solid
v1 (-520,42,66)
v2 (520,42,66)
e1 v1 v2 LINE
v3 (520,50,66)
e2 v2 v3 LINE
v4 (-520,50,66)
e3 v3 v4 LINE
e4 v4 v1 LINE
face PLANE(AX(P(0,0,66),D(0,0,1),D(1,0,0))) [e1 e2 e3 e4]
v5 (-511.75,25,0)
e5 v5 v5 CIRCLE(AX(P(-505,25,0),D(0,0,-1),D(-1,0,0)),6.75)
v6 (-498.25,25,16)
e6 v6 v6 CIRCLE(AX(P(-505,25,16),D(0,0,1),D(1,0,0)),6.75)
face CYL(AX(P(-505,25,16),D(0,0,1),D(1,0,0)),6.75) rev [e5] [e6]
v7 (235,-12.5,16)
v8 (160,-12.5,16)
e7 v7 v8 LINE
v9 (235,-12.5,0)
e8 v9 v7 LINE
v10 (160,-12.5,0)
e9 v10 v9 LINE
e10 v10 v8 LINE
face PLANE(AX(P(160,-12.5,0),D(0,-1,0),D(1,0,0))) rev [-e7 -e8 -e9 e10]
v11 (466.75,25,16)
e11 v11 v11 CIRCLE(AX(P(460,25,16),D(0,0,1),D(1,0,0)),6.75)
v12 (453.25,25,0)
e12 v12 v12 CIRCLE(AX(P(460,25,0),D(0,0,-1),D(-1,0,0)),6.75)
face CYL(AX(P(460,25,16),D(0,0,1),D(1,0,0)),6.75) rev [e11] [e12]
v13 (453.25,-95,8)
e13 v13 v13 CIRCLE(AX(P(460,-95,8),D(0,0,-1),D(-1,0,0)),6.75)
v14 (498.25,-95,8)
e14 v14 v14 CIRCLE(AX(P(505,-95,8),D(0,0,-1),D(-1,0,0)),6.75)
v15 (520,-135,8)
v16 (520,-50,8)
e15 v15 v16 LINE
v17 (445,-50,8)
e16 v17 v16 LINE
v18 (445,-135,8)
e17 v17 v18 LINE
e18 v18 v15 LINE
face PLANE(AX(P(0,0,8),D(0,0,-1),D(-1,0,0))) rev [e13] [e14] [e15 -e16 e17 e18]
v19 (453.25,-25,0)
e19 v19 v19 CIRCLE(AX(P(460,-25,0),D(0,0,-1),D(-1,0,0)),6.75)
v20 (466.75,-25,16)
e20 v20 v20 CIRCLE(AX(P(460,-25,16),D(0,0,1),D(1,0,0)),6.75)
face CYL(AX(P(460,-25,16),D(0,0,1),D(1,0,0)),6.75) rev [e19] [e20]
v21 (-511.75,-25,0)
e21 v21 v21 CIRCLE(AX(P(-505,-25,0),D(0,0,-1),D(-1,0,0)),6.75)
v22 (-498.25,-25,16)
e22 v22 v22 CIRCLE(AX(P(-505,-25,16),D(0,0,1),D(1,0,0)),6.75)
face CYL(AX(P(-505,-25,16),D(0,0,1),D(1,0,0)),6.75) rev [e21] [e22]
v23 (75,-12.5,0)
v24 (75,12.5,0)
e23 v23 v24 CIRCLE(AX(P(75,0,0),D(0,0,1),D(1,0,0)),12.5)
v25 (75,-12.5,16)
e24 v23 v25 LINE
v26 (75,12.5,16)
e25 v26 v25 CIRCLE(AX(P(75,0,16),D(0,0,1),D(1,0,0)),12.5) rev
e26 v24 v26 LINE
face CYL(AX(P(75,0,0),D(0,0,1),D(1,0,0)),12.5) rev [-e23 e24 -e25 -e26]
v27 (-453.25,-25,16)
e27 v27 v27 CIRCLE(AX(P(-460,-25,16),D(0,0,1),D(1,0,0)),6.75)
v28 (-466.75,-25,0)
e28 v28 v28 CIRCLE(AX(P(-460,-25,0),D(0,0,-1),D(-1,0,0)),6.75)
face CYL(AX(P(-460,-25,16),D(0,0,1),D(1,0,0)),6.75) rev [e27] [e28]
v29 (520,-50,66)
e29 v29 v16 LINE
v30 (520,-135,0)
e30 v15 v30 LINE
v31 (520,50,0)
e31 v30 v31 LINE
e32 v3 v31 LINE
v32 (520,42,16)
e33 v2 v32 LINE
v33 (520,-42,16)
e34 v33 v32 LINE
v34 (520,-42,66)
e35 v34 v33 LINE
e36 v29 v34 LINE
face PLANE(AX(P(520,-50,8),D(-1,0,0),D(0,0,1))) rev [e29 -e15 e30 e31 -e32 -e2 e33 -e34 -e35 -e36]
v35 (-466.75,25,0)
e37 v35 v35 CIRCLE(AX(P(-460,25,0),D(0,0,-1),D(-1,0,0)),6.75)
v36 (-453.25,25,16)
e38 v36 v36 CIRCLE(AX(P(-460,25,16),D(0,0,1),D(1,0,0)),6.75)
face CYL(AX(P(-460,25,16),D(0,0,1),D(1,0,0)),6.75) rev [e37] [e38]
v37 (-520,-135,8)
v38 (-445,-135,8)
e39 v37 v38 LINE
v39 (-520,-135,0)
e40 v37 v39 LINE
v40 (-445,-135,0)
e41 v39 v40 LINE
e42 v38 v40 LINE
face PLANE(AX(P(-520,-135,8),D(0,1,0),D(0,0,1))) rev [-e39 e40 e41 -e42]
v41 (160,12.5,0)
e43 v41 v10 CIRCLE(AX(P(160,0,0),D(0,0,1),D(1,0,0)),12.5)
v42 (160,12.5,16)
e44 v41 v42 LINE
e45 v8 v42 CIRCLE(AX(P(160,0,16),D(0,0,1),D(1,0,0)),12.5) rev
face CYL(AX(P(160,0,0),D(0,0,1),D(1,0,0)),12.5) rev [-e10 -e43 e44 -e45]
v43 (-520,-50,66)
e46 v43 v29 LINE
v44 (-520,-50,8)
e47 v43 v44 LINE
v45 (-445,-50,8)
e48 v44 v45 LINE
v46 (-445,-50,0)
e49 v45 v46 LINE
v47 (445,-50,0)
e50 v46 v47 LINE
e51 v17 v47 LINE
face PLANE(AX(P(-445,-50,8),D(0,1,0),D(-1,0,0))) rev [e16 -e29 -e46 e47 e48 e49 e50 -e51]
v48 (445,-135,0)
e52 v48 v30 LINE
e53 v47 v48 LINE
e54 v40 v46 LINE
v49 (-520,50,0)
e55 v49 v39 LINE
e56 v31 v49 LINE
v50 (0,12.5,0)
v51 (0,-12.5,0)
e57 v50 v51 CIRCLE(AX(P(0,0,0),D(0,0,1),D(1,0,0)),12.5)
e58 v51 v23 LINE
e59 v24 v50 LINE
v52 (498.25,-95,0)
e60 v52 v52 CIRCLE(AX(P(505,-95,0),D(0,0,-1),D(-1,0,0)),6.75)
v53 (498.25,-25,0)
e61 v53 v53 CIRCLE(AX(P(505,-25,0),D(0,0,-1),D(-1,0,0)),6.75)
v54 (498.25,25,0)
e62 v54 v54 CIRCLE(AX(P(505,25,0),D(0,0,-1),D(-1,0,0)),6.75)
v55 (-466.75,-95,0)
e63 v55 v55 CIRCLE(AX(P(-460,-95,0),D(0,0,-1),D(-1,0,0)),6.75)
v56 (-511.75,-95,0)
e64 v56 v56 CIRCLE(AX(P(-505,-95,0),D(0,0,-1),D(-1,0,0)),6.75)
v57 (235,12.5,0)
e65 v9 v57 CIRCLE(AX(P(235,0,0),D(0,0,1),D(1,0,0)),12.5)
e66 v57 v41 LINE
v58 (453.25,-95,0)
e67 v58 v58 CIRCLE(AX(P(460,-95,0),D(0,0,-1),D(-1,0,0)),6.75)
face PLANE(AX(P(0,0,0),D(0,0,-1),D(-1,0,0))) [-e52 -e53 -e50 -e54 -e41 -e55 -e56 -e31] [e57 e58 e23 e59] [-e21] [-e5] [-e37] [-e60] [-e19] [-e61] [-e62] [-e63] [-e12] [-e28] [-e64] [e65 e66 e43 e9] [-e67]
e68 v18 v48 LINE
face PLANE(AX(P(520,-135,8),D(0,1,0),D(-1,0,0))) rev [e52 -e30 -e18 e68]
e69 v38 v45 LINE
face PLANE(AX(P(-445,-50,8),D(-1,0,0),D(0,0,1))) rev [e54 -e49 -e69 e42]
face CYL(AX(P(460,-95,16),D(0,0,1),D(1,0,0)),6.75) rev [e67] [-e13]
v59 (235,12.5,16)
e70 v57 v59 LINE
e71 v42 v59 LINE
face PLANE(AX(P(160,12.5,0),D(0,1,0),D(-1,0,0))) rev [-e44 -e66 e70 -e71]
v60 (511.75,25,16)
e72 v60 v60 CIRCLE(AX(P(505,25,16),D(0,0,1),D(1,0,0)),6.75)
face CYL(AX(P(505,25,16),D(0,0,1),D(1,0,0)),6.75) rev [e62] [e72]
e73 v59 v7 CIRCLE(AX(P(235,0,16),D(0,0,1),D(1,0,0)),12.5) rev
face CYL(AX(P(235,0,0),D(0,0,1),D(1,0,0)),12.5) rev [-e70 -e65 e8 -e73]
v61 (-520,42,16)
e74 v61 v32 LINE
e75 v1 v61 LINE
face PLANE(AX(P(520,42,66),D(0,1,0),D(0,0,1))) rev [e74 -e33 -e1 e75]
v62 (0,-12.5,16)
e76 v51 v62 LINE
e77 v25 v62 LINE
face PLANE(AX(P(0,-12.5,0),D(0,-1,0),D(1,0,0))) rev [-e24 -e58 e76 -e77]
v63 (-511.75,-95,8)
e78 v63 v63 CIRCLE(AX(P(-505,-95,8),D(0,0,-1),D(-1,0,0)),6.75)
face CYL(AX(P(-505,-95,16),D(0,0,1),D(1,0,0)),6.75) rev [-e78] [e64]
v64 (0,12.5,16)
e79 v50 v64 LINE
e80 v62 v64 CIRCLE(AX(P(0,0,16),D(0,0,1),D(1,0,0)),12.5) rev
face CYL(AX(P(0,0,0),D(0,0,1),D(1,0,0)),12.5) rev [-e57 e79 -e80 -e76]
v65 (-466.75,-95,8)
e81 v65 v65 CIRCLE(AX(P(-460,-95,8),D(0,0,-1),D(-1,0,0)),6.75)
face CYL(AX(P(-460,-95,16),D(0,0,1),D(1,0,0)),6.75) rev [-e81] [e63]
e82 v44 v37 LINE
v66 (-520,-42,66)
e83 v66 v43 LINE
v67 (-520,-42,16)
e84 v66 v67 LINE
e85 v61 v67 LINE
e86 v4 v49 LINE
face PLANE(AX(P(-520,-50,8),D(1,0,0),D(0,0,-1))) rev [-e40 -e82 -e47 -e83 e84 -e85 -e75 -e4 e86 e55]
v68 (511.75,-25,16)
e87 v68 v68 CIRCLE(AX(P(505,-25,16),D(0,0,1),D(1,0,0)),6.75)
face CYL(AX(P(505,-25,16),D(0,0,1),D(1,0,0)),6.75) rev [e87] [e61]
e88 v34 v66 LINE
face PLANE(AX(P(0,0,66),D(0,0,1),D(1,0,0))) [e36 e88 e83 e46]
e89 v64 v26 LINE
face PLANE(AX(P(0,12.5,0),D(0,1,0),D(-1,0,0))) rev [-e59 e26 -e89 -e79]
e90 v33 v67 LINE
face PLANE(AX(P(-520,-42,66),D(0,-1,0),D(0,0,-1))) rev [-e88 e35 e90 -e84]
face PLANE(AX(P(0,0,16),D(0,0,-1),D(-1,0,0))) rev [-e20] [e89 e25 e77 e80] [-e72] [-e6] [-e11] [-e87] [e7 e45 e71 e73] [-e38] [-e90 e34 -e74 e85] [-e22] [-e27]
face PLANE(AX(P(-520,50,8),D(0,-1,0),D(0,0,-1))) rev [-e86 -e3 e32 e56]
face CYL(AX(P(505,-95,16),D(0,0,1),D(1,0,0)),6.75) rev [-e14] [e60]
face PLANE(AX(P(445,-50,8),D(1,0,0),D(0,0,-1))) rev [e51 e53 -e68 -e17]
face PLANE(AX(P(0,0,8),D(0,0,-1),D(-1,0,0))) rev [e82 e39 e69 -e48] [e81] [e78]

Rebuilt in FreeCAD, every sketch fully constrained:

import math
import FreeCAD as App
import Part
import Sketcher

V = App.Vector
Q = App.Units.Quantity


def add_polygon(sketch, points):
    """Adds a closed chain of lines whose ends are joined by coincident constraints."""
    first, n = sketch.GeometryCount, len(points)
    for a, b in zip(points, points[1:] + points[:1]):
        sketch.addGeometry(Part.LineSegment(App.Vector(*a, 0), App.Vector(*b, 0)), False)
    for i in range(n):
        sketch.addConstraint(Sketcher.Constraint("Coincident", first + i, 2, first + (i + 1) % n, 1))

doc = App.newDocument("Part")
body = doc.addObject("PartDesign::Body", "Body")

sketch1 = body.newObject("Sketcher::SketchObject", "Sketch")
sketch1.AttachmentSupport = (doc.getObject("XY_Plane"), [""])
sketch1.MapMode = "FlatFace"
add_polygon(sketch1, [(-445, -50), (445, -50), (445, -135), (520, -135), (520, 50), (-520, 50), (-520, -135), (-445, -135)])
sketch1.addConstraint([
    Sketcher.Constraint("Horizontal", 0),
    Sketcher.Constraint("Vertical", 1),
    Sketcher.Constraint("Horizontal", 2),
    Sketcher.Constraint("Vertical", 3),
    Sketcher.Constraint("Horizontal", 4),
    Sketcher.Constraint("Vertical", 5),
    Sketcher.Constraint("Horizontal", 6),
    Sketcher.Constraint("Vertical", 7),
    Sketcher.Constraint("Symmetric", 2, 2, 5, 2, -2),
    Sketcher.Constraint("Equal", 2, 6),
    Sketcher.Constraint("DistanceX", 0, 1, 0, 2, Q("890 mm")),
    Sketcher.Constraint("DistanceX", 2, 1, 2, 2, Q("75 mm")),
    Sketcher.Constraint("DistanceY", 1, 2, 1, 1, Q("85 mm")),
    Sketcher.Constraint("DistanceY", 3, 1, 3, 2, Q("185 mm")),
    Sketcher.Constraint("DistanceY", 0, 2, -1, 1, Q("50 mm")),
])
pad1 = body.newObject("PartDesign::Pad", "Pad")
pad1.Profile = sketch1
pad1.Length = 8

sketch2 = body.newObject("Sketcher::SketchObject", "Sketch001")
sketch2.AttachmentSupport = (doc.getObject("XY_Plane"), [""])
sketch2.MapMode = "FlatFace"
sketch2.AttachmentOffset = App.Placement(V(0, 0, 8), App.Rotation())
add_polygon(sketch2, [(-520, 50), (-520, -50), (520, -50), (520, 50)])
sketch2.addConstraint([
    Sketcher.Constraint("Vertical", 0),
    Sketcher.Constraint("Horizontal", 1),
    Sketcher.Constraint("Vertical", 2),
    Sketcher.Constraint("Horizontal", 3),
    Sketcher.Constraint("Symmetric", 0, 2, 2, 2, -1, 1),
    Sketcher.Constraint("DistanceX", 1, 1, 1, 2, Q("1040 mm")),
    Sketcher.Constraint("DistanceY", 0, 2, 0, 1, Q("100 mm")),
])
pad2 = body.newObject("PartDesign::Pad", "Pad001")
pad2.Profile = sketch2
pad2.Length = 8

sketch3 = body.newObject("Sketcher::SketchObject", "Sketch002")
sketch3.AttachmentSupport = (doc.getObject("XY_Plane"), [""])
sketch3.MapMode = "FlatFace"
sketch3.AttachmentOffset = App.Placement(V(0, 0, 16), App.Rotation())
sketch3.addGeometry([
    Part.LineSegment(V(75, 12.5, 0), V(0, 12.5, 0)),
    Part.ArcOfCircle(Part.Circle(V(0, 0, 0), V(0, 0, 1), 12.5), math.radians(90), math.radians(270)),
    Part.LineSegment(V(0, -12.5, 0), V(75, -12.5, 0)),
    Part.ArcOfCircle(Part.Circle(V(75, 0, 0), V(0, 0, 1), 12.5), math.radians(-90), math.radians(90)),
    Part.LineSegment(V(235, 12.5, 0), V(160, 12.5, 0)),
    Part.ArcOfCircle(Part.Circle(V(160, 0, 0), V(0, 0, 1), 12.5), math.radians(90), math.radians(270)),
    Part.LineSegment(V(160, -12.5, 0), V(235, -12.5, 0)),
    Part.ArcOfCircle(Part.Circle(V(235, 0, 0), V(0, 0, 1), 12.5), math.radians(-90), math.radians(90)),
], False)
sketch3.addConstraint([
    Sketcher.Constraint("Tangent", 0, 2, 1, 1),
    Sketcher.Constraint("Tangent", 1, 2, 2, 1),
    Sketcher.Constraint("Tangent", 2, 2, 3, 1),
    Sketcher.Constraint("Tangent", 3, 2, 0, 1),
    Sketcher.Constraint("Tangent", 4, 2, 5, 1),
    Sketcher.Constraint("Tangent", 5, 2, 6, 1),
    Sketcher.Constraint("Tangent", 6, 2, 7, 1),
    Sketcher.Constraint("Tangent", 7, 2, 4, 1),
    Sketcher.Constraint("Horizontal", 0),
    Sketcher.Constraint("Horizontal", 2),
    Sketcher.Constraint("Horizontal", 4),
    Sketcher.Constraint("Horizontal", 6),
    Sketcher.Constraint("Coincident", 1, 3, -1, 1),
    Sketcher.Constraint("Equal", 3, 5),
    Sketcher.Constraint("PointOnObject", 5, 3, -1),
    Sketcher.Constraint("Equal", 2, 4),
    Sketcher.Constraint("Radius", 1, Q("12.5 mm")),
    Sketcher.Constraint("DistanceX", 0, 2, 0, 1, Q("75 mm")),
    Sketcher.Constraint("DistanceX", -1, 1, 5, 3, Q("160 mm")),
])
pocket1 = body.newObject("PartDesign::Pocket", "Pocket")
pocket1.Profile = sketch3
pocket1.Type = "ThroughAll"
pocket1.Midplane = True

sketch4 = body.newObject("Sketcher::SketchObject", "Sketch003")
sketch4.AttachmentSupport = (doc.getObject("XY_Plane"), [""])
sketch4.MapMode = "FlatFace"
sketch4.AttachmentOffset = App.Placement(V(0, 0, 16), App.Rotation())
add_polygon(sketch4, [(-520, 50), (-520, 42), (520, 42), (520, 50)])
add_polygon(sketch4, [(-520, -42), (-520, -50), (520, -50), (520, -42)])
sketch4.addConstraint([
    Sketcher.Constraint("Vertical", 0),
    Sketcher.Constraint("Horizontal", 1),
    Sketcher.Constraint("Vertical", 2),
    Sketcher.Constraint("Horizontal", 3),
    Sketcher.Constraint("Vertical", 4),
    Sketcher.Constraint("Horizontal", 5),
    Sketcher.Constraint("Vertical", 6),
    Sketcher.Constraint("Horizontal", 7),
    Sketcher.Constraint("Symmetric", 2, 2, 4, 2, -1, 1),
    Sketcher.Constraint("Symmetric", 0, 2, 6, 2, -1, 1),
    Sketcher.Constraint("Vertical", 3, 2, 4, 2),
    Sketcher.Constraint("DistanceX", 1, 1, 1, 2, Q("1040 mm")),
    Sketcher.Constraint("DistanceY", 0, 2, 0, 1, Q("8 mm")),
    Sketcher.Constraint("DistanceY", -1, 1, 0, 2, Q("42 mm")),
])
pad3 = body.newObject("PartDesign::Pad", "Pad002")
pad3.Profile = sketch4
pad3.Length = 50

sketch5 = body.newObject("Sketcher::SketchObject", "Sketch004")
sketch5.AttachmentSupport = (doc.getObject("XY_Plane"), [""])
sketch5.MapMode = "FlatFace"
sketch5.AttachmentOffset = App.Placement(V(0, 0, 16), App.Rotation())
sketch5.addGeometry([
    Part.Circle(V(-460, 25, 0), V(0, 0, 1), 6.75),
    Part.Circle(V(-505, 25, 0), V(0, 0, 1), 6.75),
    Part.Circle(V(-505, -25, 0), V(0, 0, 1), 6.75),
    Part.Circle(V(-460, -25, 0), V(0, 0, 1), 6.75),
    Part.Circle(V(-460, -95, 0), V(0, 0, 1), 6.75),
    Part.Circle(V(-505, -95, 0), V(0, 0, 1), 6.75),
    Part.Circle(V(460, -95, 0), V(0, 0, 1), 6.75),
    Part.Circle(V(505, -95, 0), V(0, 0, 1), 6.75),
    Part.Circle(V(505, -25, 0), V(0, 0, 1), 6.75),
    Part.Circle(V(460, -25, 0), V(0, 0, 1), 6.75),
    Part.Circle(V(460, 25, 0), V(0, 0, 1), 6.75),
    Part.Circle(V(505, 25, 0), V(0, 0, 1), 6.75),
], False)
sketch5.addConstraint([
    Sketcher.Constraint("Equal", 0, 1),
    Sketcher.Constraint("Equal", 1, 2),
    Sketcher.Constraint("Equal", 2, 3),
    Sketcher.Constraint("Equal", 3, 4),
    Sketcher.Constraint("Equal", 4, 5),
    Sketcher.Constraint("Equal", 5, 6),
    Sketcher.Constraint("Equal", 6, 7),
    Sketcher.Constraint("Equal", 7, 8),
    Sketcher.Constraint("Equal", 8, 9),
    Sketcher.Constraint("Equal", 9, 10),
    Sketcher.Constraint("Equal", 10, 11),
    Sketcher.Constraint("Symmetric", 1, 3, 8, 3, -1, 1),
    Sketcher.Constraint("Symmetric", 0, 3, 9, 3, -1, 1),
    Sketcher.Constraint("Symmetric", 3, 3, 10, 3, -1, 1),
    Sketcher.Constraint("Symmetric", 2, 3, 11, 3, -1, 1),
    Sketcher.Constraint("Symmetric", 4, 3, 6, 3, -2),
    Sketcher.Constraint("Symmetric", 5, 3, 7, 3, -2),
    Sketcher.Constraint("Symmetric", 2, 3, 8, 3, -2),
    Sketcher.Constraint("Symmetric", 3, 3, 9, 3, -2),
    Sketcher.Constraint("Horizontal", 0, 3, 1, 3),
    Sketcher.Constraint("Horizontal", 4, 3, 5, 3),
    Sketcher.Constraint("Vertical", 3, 3, 4, 3),
    Sketcher.Constraint("Vertical", 2, 3, 5, 3),
    Sketcher.Constraint("Diameter", 0, Q("13.5 mm")),
    Sketcher.Constraint("DistanceX", 0, 3, -1, 1, Q("460 mm")),
    Sketcher.Constraint("DistanceY", -1, 1, 0, 3, Q("25 mm")),
    Sketcher.Constraint("DistanceX", 1, 3, -1, 1, Q("505 mm")),
    Sketcher.Constraint("DistanceY", 4, 3, -1, 1, Q("95 mm")),
])
doc.recompute()
hole = body.newObject("PartDesign::Hole", "Hole")
hole.Profile = sketch5
hole.ThreadType = "None"
hole.Diameter = 13.5
hole.DepthType = "ThroughAll"

doc.recompute()
